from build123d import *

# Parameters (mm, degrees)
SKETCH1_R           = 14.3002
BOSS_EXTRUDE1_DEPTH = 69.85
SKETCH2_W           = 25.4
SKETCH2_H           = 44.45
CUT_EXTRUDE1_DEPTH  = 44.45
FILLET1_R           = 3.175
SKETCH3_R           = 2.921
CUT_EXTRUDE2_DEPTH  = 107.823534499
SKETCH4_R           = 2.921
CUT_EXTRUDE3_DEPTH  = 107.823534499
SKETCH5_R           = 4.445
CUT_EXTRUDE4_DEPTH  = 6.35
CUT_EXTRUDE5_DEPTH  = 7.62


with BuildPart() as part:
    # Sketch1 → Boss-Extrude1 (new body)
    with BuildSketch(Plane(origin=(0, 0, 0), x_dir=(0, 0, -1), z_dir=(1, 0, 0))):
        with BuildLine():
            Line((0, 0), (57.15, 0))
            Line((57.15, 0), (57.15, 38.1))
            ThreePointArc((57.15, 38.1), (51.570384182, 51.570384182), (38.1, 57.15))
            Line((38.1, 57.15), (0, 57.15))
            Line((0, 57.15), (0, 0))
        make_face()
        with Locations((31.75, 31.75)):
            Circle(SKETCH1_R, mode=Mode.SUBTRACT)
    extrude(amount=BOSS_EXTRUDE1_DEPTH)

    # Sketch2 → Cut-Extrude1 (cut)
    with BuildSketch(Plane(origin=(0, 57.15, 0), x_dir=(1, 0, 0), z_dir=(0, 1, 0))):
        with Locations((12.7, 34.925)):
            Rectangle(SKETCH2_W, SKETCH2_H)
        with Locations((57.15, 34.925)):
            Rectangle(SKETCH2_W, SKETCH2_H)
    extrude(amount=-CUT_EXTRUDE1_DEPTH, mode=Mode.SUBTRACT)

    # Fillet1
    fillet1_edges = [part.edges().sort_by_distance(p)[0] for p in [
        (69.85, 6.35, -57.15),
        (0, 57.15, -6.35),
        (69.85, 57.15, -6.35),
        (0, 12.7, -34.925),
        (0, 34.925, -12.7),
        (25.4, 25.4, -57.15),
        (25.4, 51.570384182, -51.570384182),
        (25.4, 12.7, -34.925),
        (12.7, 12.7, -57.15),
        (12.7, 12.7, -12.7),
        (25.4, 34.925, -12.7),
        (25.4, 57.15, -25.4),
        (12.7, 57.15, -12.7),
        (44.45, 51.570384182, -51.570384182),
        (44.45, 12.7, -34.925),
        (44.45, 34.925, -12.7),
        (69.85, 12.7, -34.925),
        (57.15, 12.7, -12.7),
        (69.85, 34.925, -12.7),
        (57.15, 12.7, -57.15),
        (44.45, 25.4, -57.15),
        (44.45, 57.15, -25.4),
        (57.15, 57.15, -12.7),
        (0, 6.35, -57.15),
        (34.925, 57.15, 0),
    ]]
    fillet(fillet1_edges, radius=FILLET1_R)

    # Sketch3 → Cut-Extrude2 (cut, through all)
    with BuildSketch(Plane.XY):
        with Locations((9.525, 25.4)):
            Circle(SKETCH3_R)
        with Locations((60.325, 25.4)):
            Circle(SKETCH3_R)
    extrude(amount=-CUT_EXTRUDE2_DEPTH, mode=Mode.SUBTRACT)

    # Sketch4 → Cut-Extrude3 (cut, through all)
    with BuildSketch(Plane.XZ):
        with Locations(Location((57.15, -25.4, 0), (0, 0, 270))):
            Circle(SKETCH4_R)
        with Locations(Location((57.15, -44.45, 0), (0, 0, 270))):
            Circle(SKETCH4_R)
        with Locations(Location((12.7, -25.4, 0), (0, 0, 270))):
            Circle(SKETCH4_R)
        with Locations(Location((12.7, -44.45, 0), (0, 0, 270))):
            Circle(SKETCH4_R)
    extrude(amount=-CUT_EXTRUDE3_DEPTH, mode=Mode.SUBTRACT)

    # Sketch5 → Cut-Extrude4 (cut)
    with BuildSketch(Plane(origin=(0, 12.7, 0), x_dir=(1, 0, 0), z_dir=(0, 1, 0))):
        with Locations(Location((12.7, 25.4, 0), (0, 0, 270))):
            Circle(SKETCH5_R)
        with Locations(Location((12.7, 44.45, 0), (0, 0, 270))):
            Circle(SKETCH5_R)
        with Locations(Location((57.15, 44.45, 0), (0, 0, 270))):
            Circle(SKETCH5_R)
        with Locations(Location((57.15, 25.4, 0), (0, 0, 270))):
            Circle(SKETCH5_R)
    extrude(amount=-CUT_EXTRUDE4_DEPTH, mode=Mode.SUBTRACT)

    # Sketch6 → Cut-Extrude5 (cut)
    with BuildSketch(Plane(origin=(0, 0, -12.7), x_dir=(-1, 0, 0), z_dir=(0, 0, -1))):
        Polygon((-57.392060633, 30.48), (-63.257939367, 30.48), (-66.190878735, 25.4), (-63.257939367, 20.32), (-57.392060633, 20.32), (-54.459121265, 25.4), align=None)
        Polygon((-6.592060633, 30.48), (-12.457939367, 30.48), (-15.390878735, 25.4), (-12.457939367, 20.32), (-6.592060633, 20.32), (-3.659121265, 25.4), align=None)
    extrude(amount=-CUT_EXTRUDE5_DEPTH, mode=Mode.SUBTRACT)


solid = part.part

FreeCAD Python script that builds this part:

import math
import FreeCAD as App
import Part
import Sketcher

V = App.Vector
Q = App.Units.Quantity


def edges_at(feature, points):
    """Names of the edges that pass closest to the given points."""
    edges = feature.Shape.Edges
    near = lambda p: min(range(len(edges)), key=lambda i: edges[i].distToShape(Part.Vertex(*p))[0])
    return sorted({f"Edge{near(p) + 1}" for p in points})

doc = App.newDocument("Part")
body = doc.addObject("PartDesign::Body", "Body")

sketch1 = body.newObject("Sketcher::SketchObject", "Sketch")
sketch1.AttachmentSupport = (doc.getObject("YZ_Plane"), [""])
sketch1.MapMode = "FlatFace"
sketch1.addGeometry([
    Part.LineSegment(V(0, 0, 0), V(0, -57, 0)),
    Part.LineSegment(V(0, -57, 0), V(38, -57, 0)),
    Part.ArcOfCircle(Part.Circle(V(38, -38, 0), V(0, 0, 1), 19), math.radians(-90), math.radians(0)),
    Part.LineSegment(V(57, -38, 0), V(57, 0, 0)),
    Part.LineSegment(V(57, 0, 0), V(0, 0, 0)),
    Part.Circle(V(32, -32, 0), V(0, 0, 1), 14),
], False)
sketch1.addConstraint([
    Sketcher.Constraint("Coincident", 0, 2, 1, 1),
    Sketcher.Constraint("Tangent", 1, 2, 2, 1),
    Sketcher.Constraint("Tangent", 2, 2, 3, 1),
    Sketcher.Constraint("Coincident", 3, 2, 4, 1),
    Sketcher.Constraint("Coincident", 4, 2, 0, 1),
    Sketcher.Constraint("Vertical", 0),
    Sketcher.Constraint("Horizontal", 1),
    Sketcher.Constraint("Vertical", 3),
    Sketcher.Constraint("Horizontal", 4),
    Sketcher.Constraint("Coincident", 4, 2, -1, 1),
    Sketcher.Constraint("Equal", 4, 0),
    Sketcher.Constraint("Radius", 2, Q("0.75 in")),
    Sketcher.Constraint("Diameter", 5, Q("1.126 in")),
    Sketcher.Constraint("DistanceX", 1, 1, 1, 2, Q("1.5 in")),
    Sketcher.Constraint("DistanceY", 0, 2, 5, 3, Q("1 in")),
    Sketcher.Constraint("DistanceX", 5, 3, 2, 2, Q("1 in")),
])
pad1 = body.newObject("PartDesign::Pad", "Pad")
pad1.Profile = sketch1
pad1.Length = Q("2.75 in")

sketch2 = body.newObject("Sketcher::SketchObject", "Sketch001")
sketch2.AttachmentSupport = (doc.getObject("XZ_Plane"), [""])
sketch2.MapMode = "FlatFace"
sketch2.AttachmentOffset = App.Placement(V(0, 0, -2.25 * 25.4), App.Rotation())
sketch2.addGeometry([
    Part.LineSegment(V(0, -57, 0), V(0, -13, 0)),
    Part.LineSegment(V(0, -13, 0), V(25, -13, 0)),
    Part.LineSegment(V(25, -13, 0), V(25, -57, 0)),
    Part.LineSegment(V(25, -57, 0), V(0, -57, 0)),
    Part.LineSegment(V(44, -57, 0), V(44, -13, 0)),
    Part.LineSegment(V(44, -13, 0), V(70, -13, 0)),
    Part.LineSegment(V(70, -13, 0), V(70, -57, 0)),
    Part.LineSegment(V(70, -57, 0), V(44, -57, 0)),
], False)
sketch2.addConstraint([
    Sketcher.Constraint("Coincident", 0, 2, 1, 1),
    Sketcher.Constraint("Coincident", 1, 2, 2, 1),
    Sketcher.Constraint("Coincident", 2, 2, 3, 1),
    Sketcher.Constraint("Coincident", 3, 2, 0, 1),
    Sketcher.Constraint("Coincident", 4, 2, 5, 1),
    Sketcher.Constraint("Coincident", 5, 2, 6, 1),
    Sketcher.Constraint("Coincident", 6, 2, 7, 1),
    Sketcher.Constraint("Coincident", 7, 2, 4, 1),
    Sketcher.Constraint("Vertical", 0),
    Sketcher.Constraint("Horizontal", 1),
    Sketcher.Constraint("Vertical", 2),
    Sketcher.Constraint("Horizontal", 3),
    Sketcher.Constraint("Vertical", 4),
    Sketcher.Constraint("Horizontal", 5),
    Sketcher.Constraint("Vertical", 6),
    Sketcher.Constraint("Horizontal", 7),
    Sketcher.Constraint("PointOnObject", 0, 2, -2),
    Sketcher.Constraint("Horizontal", 1, 2, 4, 2),
    Sketcher.Constraint("Horizontal", 3, 2, 6, 2),
    Sketcher.Constraint("Equal", 3, 5),
    Sketcher.Constraint("DistanceX", 1, 1, 1, 2, Q("1 in")),
    Sketcher.Constraint("DistanceY", 0, 1, 0, 2, Q("1.75 in")),
    Sketcher.Constraint("DistanceY", 0, 2, -1, 1, Q("0.5 in")),
    Sketcher.Constraint("DistanceX", -1, 1, 4, 2, Q("1.75 in")),
])
pocket1 = body.newObject("PartDesign::Pocket", "Pocket")
pocket1.Profile = sketch2
pocket1.Length = Q("1.75 in")
pocket1.Reversed = True
doc.recompute()

fillet = body.newObject("PartDesign::Fillet", "Fillet")
fillet.Base = (pocket1, edges_at(pocket1, [
    (69.85, 6.35, -57.15),
    (0, 57.15, -6.35),
    (69.85, 57.15, -6.35),
    (0, 12.7, -34.925),
    (0, 34.925, -12.7),
    (25.4, 25.4, -57.15),
    (25.4, 51.57, -51.57),
    (25.4, 12.7, -34.925),
    (12.7, 12.7, -57.15),
    (12.7, 12.7, -12.7),
    (25.4, 34.925, -12.7),
    (25.4, 57.15, -25.4),
    (12.7, 57.15, -12.7),
    (44.45, 51.57, -51.57),
    (44.45, 12.7, -34.925),
    (44.45, 34.925, -12.7),
    (69.85, 12.7, -34.925),
    (57.15, 12.7, -12.7),
    (69.85, 34.925, -12.7),
    (57.15, 12.7, -57.15),
    (44.45, 25.4, -57.15),
    (44.45, 57.15, -25.4),
    (57.15, 57.15, -12.7),
    (0, 6.35, -57.15),
    (34.925, 57.15, 0),
]))
fillet.Radius = Q("0.125 in")

sketch3 = body.newObject("Sketcher::SketchObject", "Sketch002")
sketch3.AttachmentSupport = (doc.getObject("XY_Plane"), [""])
sketch3.MapMode = "FlatFace"
sketch3.addGeometry([
    Part.Circle(V(9.5, 25.4, 0), V(0, 0, 1), 2.9),
    Part.Circle(V(60.3, 25.4, 0), V(0, 0, 1), 2.9),
], False)
sketch3.addConstraint([
    Sketcher.Constraint("Equal", 0, 1),
    Sketcher.Constraint("Horizontal", 0, 3, 1, 3),
    Sketcher.Constraint("Diameter", 0, Q("0.23 in")),
    Sketcher.Constraint("DistanceY", -1, 1, 0, 3, Q("1 in")),
    Sketcher.Constraint("DistanceX", 0, 3, 1, 3, Q("2 in")),
    Sketcher.Constraint("DistanceX", -1, 1, 0, 3, Q("0.375 in")),
])
pocket2 = body.newObject("PartDesign::Pocket", "Pocket001")
pocket2.Profile = sketch3
pocket2.Type = "ThroughAll"

sketch4 = body.newObject("Sketcher::SketchObject", "Sketch003")
sketch4.AttachmentSupport = (doc.getObject("XZ_Plane"), [""])
sketch4.MapMode = "FlatFace"
sketch4.addGeometry([
    Part.Circle(V(57.1, -25.4, 0), V(0, 0, 1), 2.9),
    Part.Circle(V(57.1, -44.5, 0), V(0, 0, 1), 2.9),
    Part.Circle(V(12.7, -25.4, 0), V(0, 0, 1), 2.9),
    Part.Circle(V(12.7, -44.5, 0), V(0, 0, 1), 2.9),
], False)
sketch4.addConstraint([
    Sketcher.Constraint("Equal", 0, 1),
    Sketcher.Constraint("Equal", 1, 2),
    Sketcher.Constraint("Equal", 2, 3),
    Sketcher.Constraint("Horizontal", 0, 3, 2, 3),
    Sketcher.Constraint("Horizontal", 1, 3, 3, 3),
    Sketcher.Constraint("Vertical", 0, 3, 1, 3),
    Sketcher.Constraint("Vertical", 2, 3, 3, 3),
    Sketcher.Constraint("Diameter", 0, Q("0.23 in")),
    Sketcher.Constraint("DistanceY", 0, 3, -1, 1, Q("1 in")),
    Sketcher.Constraint("DistanceX", -1, 1, 2, 3, Q("0.5 in")),
    Sketcher.Constraint("DistanceX", -1, 1, 0, 3, Q("2.25 in")),
    Sketcher.Constraint("DistanceY", 1, 3, -1, 1, Q("1.75 in")),
])
pocket3 = body.newObject("PartDesign::Pocket", "Pocket002")
pocket3.Profile = sketch4
pocket3.Type = "ThroughAll"

sketch5 = body.newObject("Sketcher::SketchObject", "Sketch004")
sketch5.AttachmentSupport = (doc.getObject("XZ_Plane"), [""])
sketch5.MapMode = "FlatFace"
sketch5.AttachmentOffset = App.Placement(V(0, 0, -0.5 * 25.4), App.Rotation())
sketch5.addGeometry([
    Part.Circle(V(12.7, -25.4, 0), V(0, 0, 1), 4.4),
    Part.Circle(V(12.7, -44.5, 0), V(0, 0, 1), 4.4),
    Part.Circle(V(57.1, -44.5, 0), V(0, 0, 1), 4.4),
    Part.Circle(V(57.1, -25.4, 0), V(0, 0, 1), 4.4),
], False)
sketch5.addConstraint([
    Sketcher.Constraint("Equal", 0, 1),
    Sketcher.Constraint("Equal", 1, 2),
    Sketcher.Constraint("Equal", 2, 3),
    Sketcher.Constraint("Horizontal", 1, 3, 2, 3),
    Sketcher.Constraint("Horizontal", 0, 3, 3, 3),
    Sketcher.Constraint("Vertical", 0, 3, 1, 3),
    Sketcher.Constraint("Vertical", 2, 3, 3, 3),
    Sketcher.Constraint("Diameter", 0, Q("0.35 in")),
    Sketcher.Constraint("DistanceY", 0, 3, -1, 1, Q("1 in")),
    Sketcher.Constraint("DistanceX", -1, 1, 0, 3, Q("0.5 in")),
    Sketcher.Constraint("DistanceY", 1, 3, -1, 1, Q("1.75 in")),
    Sketcher.Constraint("DistanceX", -1, 1, 2, 3, Q("2.25 in")),
])
pocket4 = body.newObject("PartDesign::Pocket", "Pocket003")
pocket4.Profile = sketch5
pocket4.Length = Q("0.25 in")
pocket4.Reversed = True

sketch6 = body.newObject("Sketcher::SketchObject", "Sketch005")
sketch6.AttachmentSupport = (doc.getObject("XY_Plane"), [""])
sketch6.MapMode = "FlatFace"
sketch6.AttachmentOffset = App.Placement(V(0, 0, -0.5 * 25.4), App.Rotation())
sketch6.addGeometry([
    Part.LineSegment(V(57, 30, 0), V(63, 30, 0)),
    Part.LineSegment(V(63, 30, 0), V(66, 25, 0)),
    Part.LineSegment(V(66, 25, 0), V(63, 20, 0)),
    Part.LineSegment(V(63, 20, 0), V(57, 20, 0)),
    Part.LineSegment(V(57, 20, 0), V(54, 25, 0)),
    Part.LineSegment(V(54, 25, 0), V(57, 30, 0)),
    Part.LineSegment(V(7, 30, 0), V(12, 30, 0)),
    Part.LineSegment(V(12, 30, 0), V(15, 25, 0)),
    Part.LineSegment(V(15, 25, 0), V(12, 20, 0)),
    Part.LineSegment(V(12, 20, 0), V(7, 20, 0)),
    Part.LineSegment(V(7, 20, 0), V(4, 25, 0)),
    Part.LineSegment(V(4, 25, 0), V(7, 30, 0)),
], False)
sketch6.addConstraint([
    Sketcher.Constraint("Coincident", 0, 2, 1, 1),
    Sketcher.Constraint("Coincident", 1, 2, 2, 1),
    Sketcher.Constraint("Coincident", 2, 2, 3, 1),
    Sketcher.Constraint("Coincident", 3, 2, 4, 1),
    Sketcher.Constraint("Coincident", 4, 2, 5, 1),
    Sketcher.Constraint("Coincident", 5, 2, 0, 1),
    Sketcher.Constraint("Coincident", 6, 2, 7, 1),
    Sketcher.Constraint("Coincident", 7, 2, 8, 1),
    Sketcher.Constraint("Coincident", 8, 2, 9, 1),
    Sketcher.Constraint("Coincident", 9, 2, 10, 1),
    Sketcher.Constraint("Coincident", 10, 2, 11, 1),
    Sketcher.Constraint("Coincident", 11, 2, 6, 1),
    Sketcher.Constraint("Horizontal", 0),
    Sketcher.Constraint("Horizontal", 3),
    Sketcher.Constraint("Horizontal", 6),
    Sketcher.Constraint("Horizontal", 9),
    Sketcher.Constraint("Parallel", 1, 4),
    Sketcher.Constraint("Parallel", 2, 5),
    Sketcher.Constraint("Parallel", 4, 7),
    Sketcher.Constraint("Parallel", 5, 8),
    Sketcher.Constraint("Parallel", 7, 10),
    Sketcher.Constraint("Parallel", 8, 11),
    Sketcher.Constraint("Horizontal", 1, 2, 4, 2),
    Sketcher.Constraint("Horizontal", 5, 2, 6, 2),
    Sketcher.Constraint("Horizontal", 4, 2, 7, 2),
    Sketcher.Constraint("Horizontal", 3, 2, 8, 2),
    Sketcher.Constraint("Horizontal", 7, 2, 10, 2),
    Sketcher.Constraint("Vertical", 0, 2, 2, 2),
    Sketcher.Constraint("Vertical", 3, 2, 5, 2),
    Sketcher.Constraint("Equal", 3, 6),
    Sketcher.Constraint("DistanceY", -1, 1, 1, 2, Q("1 in")),
    Sketcher.Constraint("Angle", 1, Q("-60 deg")),
    Sketcher.Constraint("DistanceX", 6, 2, 0, 2, Q("2 in")),
    Sketcher.Constraint("DistanceY", -1, 1, 0, 2, Q("1.2 in")),
    Sketcher.Constraint("DistanceX", 0, 1, 0, 2, 5.865879),
    Sketcher.Constraint("DistanceX", -1, 1, 0, 2, 63.257939),
])
pocket5 = body.newObject("PartDesign::Pocket", "Pocket004")
pocket5.Profile = sketch6
pocket5.Length = Q("0.3 in")
pocket5.Reversed = True

doc.recompute()
